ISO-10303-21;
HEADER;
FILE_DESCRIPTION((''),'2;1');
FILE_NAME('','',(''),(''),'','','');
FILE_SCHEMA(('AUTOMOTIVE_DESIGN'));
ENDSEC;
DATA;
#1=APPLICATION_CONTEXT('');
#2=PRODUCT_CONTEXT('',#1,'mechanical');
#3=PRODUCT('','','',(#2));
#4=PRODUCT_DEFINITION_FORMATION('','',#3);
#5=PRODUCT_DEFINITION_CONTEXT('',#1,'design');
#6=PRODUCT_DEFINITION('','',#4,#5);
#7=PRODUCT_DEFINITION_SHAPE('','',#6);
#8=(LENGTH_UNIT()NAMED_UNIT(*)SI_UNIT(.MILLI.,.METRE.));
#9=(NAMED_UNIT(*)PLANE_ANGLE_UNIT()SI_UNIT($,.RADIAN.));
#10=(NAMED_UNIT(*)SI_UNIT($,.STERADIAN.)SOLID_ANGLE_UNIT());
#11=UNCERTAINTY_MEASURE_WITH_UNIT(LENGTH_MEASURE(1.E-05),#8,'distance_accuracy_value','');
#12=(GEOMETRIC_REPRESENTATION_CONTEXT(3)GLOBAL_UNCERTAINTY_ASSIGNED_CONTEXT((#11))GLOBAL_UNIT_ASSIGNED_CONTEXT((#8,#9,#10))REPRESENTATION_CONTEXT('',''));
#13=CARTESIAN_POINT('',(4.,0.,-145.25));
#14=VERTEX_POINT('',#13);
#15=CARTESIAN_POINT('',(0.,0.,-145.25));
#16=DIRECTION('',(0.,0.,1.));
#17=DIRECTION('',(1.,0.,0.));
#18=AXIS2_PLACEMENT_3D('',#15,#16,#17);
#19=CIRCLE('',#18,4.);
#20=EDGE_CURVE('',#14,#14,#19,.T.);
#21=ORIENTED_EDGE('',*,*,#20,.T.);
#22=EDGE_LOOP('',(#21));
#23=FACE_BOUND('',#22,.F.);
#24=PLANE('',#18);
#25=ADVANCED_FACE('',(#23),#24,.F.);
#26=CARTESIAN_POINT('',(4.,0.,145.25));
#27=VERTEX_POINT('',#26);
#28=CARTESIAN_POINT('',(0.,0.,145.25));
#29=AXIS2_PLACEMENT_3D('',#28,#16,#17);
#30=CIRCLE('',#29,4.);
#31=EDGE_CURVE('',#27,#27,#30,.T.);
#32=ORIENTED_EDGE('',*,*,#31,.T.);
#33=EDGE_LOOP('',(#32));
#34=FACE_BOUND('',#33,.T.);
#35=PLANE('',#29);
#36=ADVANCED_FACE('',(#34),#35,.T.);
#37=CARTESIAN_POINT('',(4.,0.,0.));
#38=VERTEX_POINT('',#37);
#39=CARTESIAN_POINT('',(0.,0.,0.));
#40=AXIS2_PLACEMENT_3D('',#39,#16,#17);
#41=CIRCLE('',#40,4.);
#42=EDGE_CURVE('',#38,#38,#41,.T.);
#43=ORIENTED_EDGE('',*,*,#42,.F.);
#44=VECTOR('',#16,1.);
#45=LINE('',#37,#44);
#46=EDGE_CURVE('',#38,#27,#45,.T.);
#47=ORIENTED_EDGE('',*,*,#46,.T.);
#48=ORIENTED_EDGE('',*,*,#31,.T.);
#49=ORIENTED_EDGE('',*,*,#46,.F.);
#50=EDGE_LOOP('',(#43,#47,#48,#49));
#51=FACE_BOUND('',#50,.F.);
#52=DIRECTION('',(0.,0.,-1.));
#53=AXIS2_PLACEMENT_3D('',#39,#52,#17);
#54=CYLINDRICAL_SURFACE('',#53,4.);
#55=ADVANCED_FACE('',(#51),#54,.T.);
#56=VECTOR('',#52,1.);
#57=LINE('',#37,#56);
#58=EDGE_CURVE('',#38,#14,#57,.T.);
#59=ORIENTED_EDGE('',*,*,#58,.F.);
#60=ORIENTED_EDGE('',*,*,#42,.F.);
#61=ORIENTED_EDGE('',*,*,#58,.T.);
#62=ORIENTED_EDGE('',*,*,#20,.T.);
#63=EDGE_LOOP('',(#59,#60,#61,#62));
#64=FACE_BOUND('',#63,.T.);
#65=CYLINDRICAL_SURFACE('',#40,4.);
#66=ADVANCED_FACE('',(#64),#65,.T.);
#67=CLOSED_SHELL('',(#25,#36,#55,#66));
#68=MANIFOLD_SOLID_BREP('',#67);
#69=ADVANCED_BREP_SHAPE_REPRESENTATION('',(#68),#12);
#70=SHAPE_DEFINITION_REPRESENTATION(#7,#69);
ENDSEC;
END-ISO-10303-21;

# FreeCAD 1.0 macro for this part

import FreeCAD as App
import Part
import Sketcher
from FreeCAD import Vector

doc = App.newDocument("Part")
body = doc.addObject("PartDesign::Body", "Body")

# Sketch on XY plane
sketch1 = body.newObject("Sketcher::SketchObject", "Sketch")
sketch1.AttachmentSupport = (doc.getObject("XY_Plane"), [""])
sketch1.MapMode = "FlatFace"
sketch1.addGeometry(Part.Circle(Vector(0, 0, 0), Vector(0, 0, 1), 4), False)
sketch1.addConstraint([
    Sketcher.Constraint("Coincident", 0, 3, -1, 1),
    Sketcher.Constraint("Diameter", 0, 8.0),
])
pad1 = body.newObject("PartDesign::Pad", "Pad")
pad1.Profile = sketch1
pad1.Length = 290.5
pad1.Midplane = True

doc.recompute()
